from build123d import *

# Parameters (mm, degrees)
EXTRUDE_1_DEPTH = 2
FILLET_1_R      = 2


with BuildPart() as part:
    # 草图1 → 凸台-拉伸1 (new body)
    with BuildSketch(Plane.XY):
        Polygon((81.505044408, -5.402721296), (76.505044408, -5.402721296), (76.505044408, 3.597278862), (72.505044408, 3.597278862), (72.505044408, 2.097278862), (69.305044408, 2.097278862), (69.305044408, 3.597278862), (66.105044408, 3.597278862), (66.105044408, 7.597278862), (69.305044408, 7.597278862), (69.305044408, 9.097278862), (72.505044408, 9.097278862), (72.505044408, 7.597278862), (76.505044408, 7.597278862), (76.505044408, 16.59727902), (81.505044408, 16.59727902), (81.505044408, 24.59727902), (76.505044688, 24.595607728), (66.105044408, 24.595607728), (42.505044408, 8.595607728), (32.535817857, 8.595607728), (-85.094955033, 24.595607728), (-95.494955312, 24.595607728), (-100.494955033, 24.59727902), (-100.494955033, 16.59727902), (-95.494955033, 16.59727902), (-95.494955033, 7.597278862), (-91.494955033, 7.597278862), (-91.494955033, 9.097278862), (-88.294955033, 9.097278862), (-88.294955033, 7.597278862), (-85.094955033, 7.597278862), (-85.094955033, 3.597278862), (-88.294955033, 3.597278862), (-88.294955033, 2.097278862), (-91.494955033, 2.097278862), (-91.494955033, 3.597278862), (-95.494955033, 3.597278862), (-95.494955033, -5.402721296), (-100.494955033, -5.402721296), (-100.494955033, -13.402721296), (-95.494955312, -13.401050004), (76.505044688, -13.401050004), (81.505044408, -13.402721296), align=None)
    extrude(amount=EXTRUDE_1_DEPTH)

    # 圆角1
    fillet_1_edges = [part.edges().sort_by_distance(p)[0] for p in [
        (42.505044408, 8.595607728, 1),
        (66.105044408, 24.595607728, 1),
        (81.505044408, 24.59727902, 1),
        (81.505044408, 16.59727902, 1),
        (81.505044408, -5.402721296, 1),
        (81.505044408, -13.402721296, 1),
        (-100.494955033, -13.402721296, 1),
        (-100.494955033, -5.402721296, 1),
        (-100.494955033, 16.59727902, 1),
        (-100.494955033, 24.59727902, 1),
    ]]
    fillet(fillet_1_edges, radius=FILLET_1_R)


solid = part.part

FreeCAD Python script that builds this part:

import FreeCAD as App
import Part
import Sketcher

V = App.Vector


def edges_at(feature, points):
    """Names of the edges that pass closest to the given points."""
    edges = feature.Shape.Edges
    near = lambda p: min(range(len(edges)), key=lambda i: edges[i].distToShape(Part.Vertex(*p))[0])
    return sorted({f"Edge{near(p) + 1}" for p in points})


def add_polygon(sketch, points):
    """Adds a closed chain of lines whose ends are joined by coincident constraints."""
    first, n = sketch.GeometryCount, len(points)
    for a, b in zip(points, points[1:] + points[:1]):
        sketch.addGeometry(Part.LineSegment(App.Vector(*a, 0), App.Vector(*b, 0)), False)
    for i in range(n):
        sketch.addConstraint(Sketcher.Constraint("Coincident", first + i, 2, first + (i + 1) % n, 1))

doc = App.newDocument("Part")
body = doc.addObject("PartDesign::Body", "Body")

# Sketch on XY plane
sketch1 = body.newObject("Sketcher::SketchObject", "Sketch")
sketch1.AttachmentSupport = (doc.getObject("XY_Plane"), [""])
sketch1.MapMode = "FlatFace"
add_polygon(sketch1, [(81.505044, -5.402721), (76.505044, -5.402721), (76.505044, 3.597279), (72.505044, 3.597279), (72.505044, 2.097279), (69.305044, 2.097279), (69.305044, 3.597279), (66.105044, 3.597279), (66.105044, 7.597279), (69.305044, 7.597279), (69.305044, 9.097279), (72.505044, 9.097279), (72.505044, 7.597279), (76.505044, 7.597279), (76.505044, 16.597279), (81.505044, 16.597279), (81.505044, 24.597279), (76.505045, 24.595608), (66.105044, 24.595608), (42.505044, 8.595608), (32.535818, 8.595608), (-85.094955, 24.595608), (-95.494955, 24.595608), (-100.494955, 24.597279), (-100.494955, 16.597279), (-95.494955, 16.597279), (-95.494955, 7.597279), (-91.494955, 7.597279), (-91.494955, 9.097279), (-88.294955, 9.097279), (-88.294955, 7.597279), (-85.094955, 7.597279), (-85.094955, 3.597279), (-88.294955, 3.597279), (-88.294955, 2.097279), (-91.494955, 2.097279), (-91.494955, 3.597279), (-95.494955, 3.597279), (-95.494955, -5.402721), (-100.494955, -5.402721), (-100.494955, -13.402721), (-95.494955, -13.40105), (76.505045, -13.40105), (81.505044, -13.402721)])  # lines 0-43
sketch1.addConstraint(Sketcher.Constraint("Horizontal", 0))
sketch1.addConstraint(Sketcher.Constraint("Vertical", 1))
sketch1.addConstraint(Sketcher.Constraint("Horizontal", 2))
sketch1.addConstraint(Sketcher.Constraint("Vertical", 3))
sketch1.addConstraint(Sketcher.Constraint("Horizontal", 4))
sketch1.addConstraint(Sketcher.Constraint("Vertical", 5))
sketch1.addConstraint(Sketcher.Constraint("Horizontal", 6))
sketch1.addConstraint(Sketcher.Constraint("Vertical", 7))
sketch1.addConstraint(Sketcher.Constraint("Horizontal", 8))
sketch1.addConstraint(Sketcher.Constraint("Vertical", 9))
sketch1.addConstraint(Sketcher.Constraint("Horizontal", 10))
sketch1.addConstraint(Sketcher.Constraint("Vertical", 11))
sketch1.addConstraint(Sketcher.Constraint("Horizontal", 12))
sketch1.addConstraint(Sketcher.Constraint("Vertical", 13))
sketch1.addConstraint(Sketcher.Constraint("Horizontal", 14))
sketch1.addConstraint(Sketcher.Constraint("Vertical", 15))
sketch1.addConstraint(Sketcher.Constraint("Horizontal", 17))
sketch1.addConstraint(Sketcher.Constraint("Horizontal", 19))
sketch1.addConstraint(Sketcher.Constraint("Horizontal", 21))
sketch1.addConstraint(Sketcher.Constraint("Vertical", 23))
sketch1.addConstraint(Sketcher.Constraint("Horizontal", 24))
sketch1.addConstraint(Sketcher.Constraint("Vertical", 25))
sketch1.addConstraint(Sketcher.Constraint("Horizontal", 26))
sketch1.addConstraint(Sketcher.Constraint("Vertical", 27))
sketch1.addConstraint(Sketcher.Constraint("Horizontal", 28))
sketch1.addConstraint(Sketcher.Constraint("Vertical", 29))
sketch1.addConstraint(Sketcher.Constraint("Horizontal", 30))
sketch1.addConstraint(Sketcher.Constraint("Vertical", 31))
sketch1.addConstraint(Sketcher.Constraint("Horizontal", 32))
sketch1.addConstraint(Sketcher.Constraint("Vertical", 33))
sketch1.addConstraint(Sketcher.Constraint("Horizontal", 34))
sketch1.addConstraint(Sketcher.Constraint("Vertical", 35))
sketch1.addConstraint(Sketcher.Constraint("Horizontal", 36))
sketch1.addConstraint(Sketcher.Constraint("Vertical", 37))
sketch1.addConstraint(Sketcher.Constraint("Horizontal", 38))
sketch1.addConstraint(Sketcher.Constraint("Vertical", 39))
sketch1.addConstraint(Sketcher.Constraint("Horizontal", 41))
sketch1.addConstraint(Sketcher.Constraint("Vertical", 43))
sketch1.addConstraint(Sketcher.Constraint("Parallel", 16, 40))
sketch1.addConstraint(Sketcher.Constraint("Parallel", 22, 42))
sketch1.addConstraint(Sketcher.Constraint("Horizontal", 2, 2, 5, 2))
sketch1.addConstraint(Sketcher.Constraint("Horizontal", 8, 2, 11, 2))
sketch1.addConstraint(Sketcher.Constraint("Horizontal", 17, 2, 20, 2))
sketch1.addConstraint(Sketcher.Constraint("Horizontal", 15, 2, 22, 2))
sketch1.addConstraint(Sketcher.Constraint("Horizontal", 14, 2, 23, 2))
sketch1.addConstraint(Sketcher.Constraint("Horizontal", 12, 2, 25, 2))
sketch1.addConstraint(Sketcher.Constraint("Horizontal", 10, 2, 27, 2))
sketch1.addConstraint(Sketcher.Constraint("Horizontal", 26, 2, 29, 2))
sketch1.addConstraint(Sketcher.Constraint("Horizontal", 6, 2, 31, 2))
sketch1.addConstraint(Sketcher.Constraint("Horizontal", 4, 2, 33, 2))
sketch1.addConstraint(Sketcher.Constraint("Horizontal", 32, 2, 35, 2))
sketch1.addConstraint(Sketcher.Constraint("Horizontal", 0, 2, 37, 2))
sketch1.addConstraint(Sketcher.Constraint("Vertical", 5, 2, 8, 2))
sketch1.addConstraint(Sketcher.Constraint("Vertical", 3, 2, 10, 2))
sketch1.addConstraint(Sketcher.Constraint("Vertical", 1, 2, 12, 2))
sketch1.addConstraint(Sketcher.Constraint("Vertical", 13, 2, 16, 2))
sketch1.addConstraint(Sketcher.Constraint("Vertical", 7, 2, 17, 2))
sketch1.addConstraint(Sketcher.Constraint("Vertical", 21, 2, 24, 2))
sketch1.addConstraint(Sketcher.Constraint("Vertical", 20, 2, 30, 2))
sketch1.addConstraint(Sketcher.Constraint("Vertical", 29, 2, 32, 2))
sketch1.addConstraint(Sketcher.Constraint("Vertical", 27, 2, 34, 2))
sketch1.addConstraint(Sketcher.Constraint("Vertical", 25, 2, 36, 2))
sketch1.addConstraint(Sketcher.Constraint("Vertical", 23, 2, 38, 2))
sketch1.addConstraint(Sketcher.Constraint("Vertical", 37, 2, 40, 2))
sketch1.addConstraint(Sketcher.Constraint("Vertical", 16, 2, 41, 2))
sketch1.addConstraint(Sketcher.Constraint("Vertical", 15, 2, 42, 2))
sketch1.addConstraint(Sketcher.Constraint("Equal", 4, 6))
sketch1.addConstraint(Sketcher.Constraint("Equal", 17, 21))
sketch1.addConstraint(Sketcher.Constraint("Equal", 14, 24))
sketch1.addConstraint(Sketcher.Constraint("Equal", 12, 26))
sketch1.addConstraint(Sketcher.Constraint("Equal", 10, 28))
sketch1.addConstraint(Sketcher.Constraint("Equal", 36, 7))
sketch1.addConstraint(Sketcher.Constraint("Equal", 5, 9))
sketch1.addConstraint(Sketcher.Constraint("Equal", 1, 13))
sketch1.addConstraint(Sketcher.Constraint("Equal", 23, 39))
sketch1.addConstraint(Sketcher.Constraint("DistanceX", 0, 2, 0, 1, 5.0))
sketch1.addConstraint(Sketcher.Constraint("DistanceX", 2, 2, 2, 1, 4.0))
sketch1.addConstraint(Sketcher.Constraint("DistanceX", 41, 1, 41, 2, 172.0))
sketch1.addConstraint(Sketcher.Constraint("DistanceY", 1, 1, 1, 2, 9.0))
sketch1.addConstraint(Sketcher.Constraint("DistanceY", 15, 1, 15, 2, 8.0))
sketch1.addConstraint(Sketcher.Constraint("DistanceX", 4, 2, 4, 1, 3.2))
sketch1.addConstraint(Sketcher.Constraint("DistanceY", 3, 2, 3, 1, 1.5))
sketch1.addConstraint(Sketcher.Constraint("DistanceY", 19, 2, 20, 2, 16.0))
sketch1.addConstraint(Sketcher.Constraint("DistanceX", 21, 2, 18, 2, 138.0))
sketch1.addConstraint(Sketcher.Constraint("DistanceX", 19, 2, 19, 1, 9.969227))
sketch1.addConstraint(Sketcher.Constraint("DistanceY", 0, 2, -1, 1, 5.402721))
sketch1.addConstraint(Sketcher.Constraint("DistanceY", 40, 2, -1, 1, 13.40105))
sketch1.addConstraint(Sketcher.Constraint("DistanceX", -1, 1, 0, 2, 76.505044))
pad1 = body.newObject("PartDesign::Pad", "Pad")
pad1.Profile = sketch1
pad1.Length = 2
doc.recompute()

fillet = body.newObject("PartDesign::Fillet", "Fillet")
fillet.Base = (pad1, edges_at(pad1, [
    (42.505, 8.596, 1),
    (66.105, 24.596, 1),
    (81.505, 24.597, 1),
    (81.505, 16.597, 1),
    (81.505, -5.403, 1),
    (81.505, -13.403, 1),
    (-100.495, -13.403, 1),
    (-100.495, -5.403, 1),
    (-100.495, 16.597, 1),
    (-100.495, 24.597, 1),
]))
fillet.Radius = 2

doc.recompute()
